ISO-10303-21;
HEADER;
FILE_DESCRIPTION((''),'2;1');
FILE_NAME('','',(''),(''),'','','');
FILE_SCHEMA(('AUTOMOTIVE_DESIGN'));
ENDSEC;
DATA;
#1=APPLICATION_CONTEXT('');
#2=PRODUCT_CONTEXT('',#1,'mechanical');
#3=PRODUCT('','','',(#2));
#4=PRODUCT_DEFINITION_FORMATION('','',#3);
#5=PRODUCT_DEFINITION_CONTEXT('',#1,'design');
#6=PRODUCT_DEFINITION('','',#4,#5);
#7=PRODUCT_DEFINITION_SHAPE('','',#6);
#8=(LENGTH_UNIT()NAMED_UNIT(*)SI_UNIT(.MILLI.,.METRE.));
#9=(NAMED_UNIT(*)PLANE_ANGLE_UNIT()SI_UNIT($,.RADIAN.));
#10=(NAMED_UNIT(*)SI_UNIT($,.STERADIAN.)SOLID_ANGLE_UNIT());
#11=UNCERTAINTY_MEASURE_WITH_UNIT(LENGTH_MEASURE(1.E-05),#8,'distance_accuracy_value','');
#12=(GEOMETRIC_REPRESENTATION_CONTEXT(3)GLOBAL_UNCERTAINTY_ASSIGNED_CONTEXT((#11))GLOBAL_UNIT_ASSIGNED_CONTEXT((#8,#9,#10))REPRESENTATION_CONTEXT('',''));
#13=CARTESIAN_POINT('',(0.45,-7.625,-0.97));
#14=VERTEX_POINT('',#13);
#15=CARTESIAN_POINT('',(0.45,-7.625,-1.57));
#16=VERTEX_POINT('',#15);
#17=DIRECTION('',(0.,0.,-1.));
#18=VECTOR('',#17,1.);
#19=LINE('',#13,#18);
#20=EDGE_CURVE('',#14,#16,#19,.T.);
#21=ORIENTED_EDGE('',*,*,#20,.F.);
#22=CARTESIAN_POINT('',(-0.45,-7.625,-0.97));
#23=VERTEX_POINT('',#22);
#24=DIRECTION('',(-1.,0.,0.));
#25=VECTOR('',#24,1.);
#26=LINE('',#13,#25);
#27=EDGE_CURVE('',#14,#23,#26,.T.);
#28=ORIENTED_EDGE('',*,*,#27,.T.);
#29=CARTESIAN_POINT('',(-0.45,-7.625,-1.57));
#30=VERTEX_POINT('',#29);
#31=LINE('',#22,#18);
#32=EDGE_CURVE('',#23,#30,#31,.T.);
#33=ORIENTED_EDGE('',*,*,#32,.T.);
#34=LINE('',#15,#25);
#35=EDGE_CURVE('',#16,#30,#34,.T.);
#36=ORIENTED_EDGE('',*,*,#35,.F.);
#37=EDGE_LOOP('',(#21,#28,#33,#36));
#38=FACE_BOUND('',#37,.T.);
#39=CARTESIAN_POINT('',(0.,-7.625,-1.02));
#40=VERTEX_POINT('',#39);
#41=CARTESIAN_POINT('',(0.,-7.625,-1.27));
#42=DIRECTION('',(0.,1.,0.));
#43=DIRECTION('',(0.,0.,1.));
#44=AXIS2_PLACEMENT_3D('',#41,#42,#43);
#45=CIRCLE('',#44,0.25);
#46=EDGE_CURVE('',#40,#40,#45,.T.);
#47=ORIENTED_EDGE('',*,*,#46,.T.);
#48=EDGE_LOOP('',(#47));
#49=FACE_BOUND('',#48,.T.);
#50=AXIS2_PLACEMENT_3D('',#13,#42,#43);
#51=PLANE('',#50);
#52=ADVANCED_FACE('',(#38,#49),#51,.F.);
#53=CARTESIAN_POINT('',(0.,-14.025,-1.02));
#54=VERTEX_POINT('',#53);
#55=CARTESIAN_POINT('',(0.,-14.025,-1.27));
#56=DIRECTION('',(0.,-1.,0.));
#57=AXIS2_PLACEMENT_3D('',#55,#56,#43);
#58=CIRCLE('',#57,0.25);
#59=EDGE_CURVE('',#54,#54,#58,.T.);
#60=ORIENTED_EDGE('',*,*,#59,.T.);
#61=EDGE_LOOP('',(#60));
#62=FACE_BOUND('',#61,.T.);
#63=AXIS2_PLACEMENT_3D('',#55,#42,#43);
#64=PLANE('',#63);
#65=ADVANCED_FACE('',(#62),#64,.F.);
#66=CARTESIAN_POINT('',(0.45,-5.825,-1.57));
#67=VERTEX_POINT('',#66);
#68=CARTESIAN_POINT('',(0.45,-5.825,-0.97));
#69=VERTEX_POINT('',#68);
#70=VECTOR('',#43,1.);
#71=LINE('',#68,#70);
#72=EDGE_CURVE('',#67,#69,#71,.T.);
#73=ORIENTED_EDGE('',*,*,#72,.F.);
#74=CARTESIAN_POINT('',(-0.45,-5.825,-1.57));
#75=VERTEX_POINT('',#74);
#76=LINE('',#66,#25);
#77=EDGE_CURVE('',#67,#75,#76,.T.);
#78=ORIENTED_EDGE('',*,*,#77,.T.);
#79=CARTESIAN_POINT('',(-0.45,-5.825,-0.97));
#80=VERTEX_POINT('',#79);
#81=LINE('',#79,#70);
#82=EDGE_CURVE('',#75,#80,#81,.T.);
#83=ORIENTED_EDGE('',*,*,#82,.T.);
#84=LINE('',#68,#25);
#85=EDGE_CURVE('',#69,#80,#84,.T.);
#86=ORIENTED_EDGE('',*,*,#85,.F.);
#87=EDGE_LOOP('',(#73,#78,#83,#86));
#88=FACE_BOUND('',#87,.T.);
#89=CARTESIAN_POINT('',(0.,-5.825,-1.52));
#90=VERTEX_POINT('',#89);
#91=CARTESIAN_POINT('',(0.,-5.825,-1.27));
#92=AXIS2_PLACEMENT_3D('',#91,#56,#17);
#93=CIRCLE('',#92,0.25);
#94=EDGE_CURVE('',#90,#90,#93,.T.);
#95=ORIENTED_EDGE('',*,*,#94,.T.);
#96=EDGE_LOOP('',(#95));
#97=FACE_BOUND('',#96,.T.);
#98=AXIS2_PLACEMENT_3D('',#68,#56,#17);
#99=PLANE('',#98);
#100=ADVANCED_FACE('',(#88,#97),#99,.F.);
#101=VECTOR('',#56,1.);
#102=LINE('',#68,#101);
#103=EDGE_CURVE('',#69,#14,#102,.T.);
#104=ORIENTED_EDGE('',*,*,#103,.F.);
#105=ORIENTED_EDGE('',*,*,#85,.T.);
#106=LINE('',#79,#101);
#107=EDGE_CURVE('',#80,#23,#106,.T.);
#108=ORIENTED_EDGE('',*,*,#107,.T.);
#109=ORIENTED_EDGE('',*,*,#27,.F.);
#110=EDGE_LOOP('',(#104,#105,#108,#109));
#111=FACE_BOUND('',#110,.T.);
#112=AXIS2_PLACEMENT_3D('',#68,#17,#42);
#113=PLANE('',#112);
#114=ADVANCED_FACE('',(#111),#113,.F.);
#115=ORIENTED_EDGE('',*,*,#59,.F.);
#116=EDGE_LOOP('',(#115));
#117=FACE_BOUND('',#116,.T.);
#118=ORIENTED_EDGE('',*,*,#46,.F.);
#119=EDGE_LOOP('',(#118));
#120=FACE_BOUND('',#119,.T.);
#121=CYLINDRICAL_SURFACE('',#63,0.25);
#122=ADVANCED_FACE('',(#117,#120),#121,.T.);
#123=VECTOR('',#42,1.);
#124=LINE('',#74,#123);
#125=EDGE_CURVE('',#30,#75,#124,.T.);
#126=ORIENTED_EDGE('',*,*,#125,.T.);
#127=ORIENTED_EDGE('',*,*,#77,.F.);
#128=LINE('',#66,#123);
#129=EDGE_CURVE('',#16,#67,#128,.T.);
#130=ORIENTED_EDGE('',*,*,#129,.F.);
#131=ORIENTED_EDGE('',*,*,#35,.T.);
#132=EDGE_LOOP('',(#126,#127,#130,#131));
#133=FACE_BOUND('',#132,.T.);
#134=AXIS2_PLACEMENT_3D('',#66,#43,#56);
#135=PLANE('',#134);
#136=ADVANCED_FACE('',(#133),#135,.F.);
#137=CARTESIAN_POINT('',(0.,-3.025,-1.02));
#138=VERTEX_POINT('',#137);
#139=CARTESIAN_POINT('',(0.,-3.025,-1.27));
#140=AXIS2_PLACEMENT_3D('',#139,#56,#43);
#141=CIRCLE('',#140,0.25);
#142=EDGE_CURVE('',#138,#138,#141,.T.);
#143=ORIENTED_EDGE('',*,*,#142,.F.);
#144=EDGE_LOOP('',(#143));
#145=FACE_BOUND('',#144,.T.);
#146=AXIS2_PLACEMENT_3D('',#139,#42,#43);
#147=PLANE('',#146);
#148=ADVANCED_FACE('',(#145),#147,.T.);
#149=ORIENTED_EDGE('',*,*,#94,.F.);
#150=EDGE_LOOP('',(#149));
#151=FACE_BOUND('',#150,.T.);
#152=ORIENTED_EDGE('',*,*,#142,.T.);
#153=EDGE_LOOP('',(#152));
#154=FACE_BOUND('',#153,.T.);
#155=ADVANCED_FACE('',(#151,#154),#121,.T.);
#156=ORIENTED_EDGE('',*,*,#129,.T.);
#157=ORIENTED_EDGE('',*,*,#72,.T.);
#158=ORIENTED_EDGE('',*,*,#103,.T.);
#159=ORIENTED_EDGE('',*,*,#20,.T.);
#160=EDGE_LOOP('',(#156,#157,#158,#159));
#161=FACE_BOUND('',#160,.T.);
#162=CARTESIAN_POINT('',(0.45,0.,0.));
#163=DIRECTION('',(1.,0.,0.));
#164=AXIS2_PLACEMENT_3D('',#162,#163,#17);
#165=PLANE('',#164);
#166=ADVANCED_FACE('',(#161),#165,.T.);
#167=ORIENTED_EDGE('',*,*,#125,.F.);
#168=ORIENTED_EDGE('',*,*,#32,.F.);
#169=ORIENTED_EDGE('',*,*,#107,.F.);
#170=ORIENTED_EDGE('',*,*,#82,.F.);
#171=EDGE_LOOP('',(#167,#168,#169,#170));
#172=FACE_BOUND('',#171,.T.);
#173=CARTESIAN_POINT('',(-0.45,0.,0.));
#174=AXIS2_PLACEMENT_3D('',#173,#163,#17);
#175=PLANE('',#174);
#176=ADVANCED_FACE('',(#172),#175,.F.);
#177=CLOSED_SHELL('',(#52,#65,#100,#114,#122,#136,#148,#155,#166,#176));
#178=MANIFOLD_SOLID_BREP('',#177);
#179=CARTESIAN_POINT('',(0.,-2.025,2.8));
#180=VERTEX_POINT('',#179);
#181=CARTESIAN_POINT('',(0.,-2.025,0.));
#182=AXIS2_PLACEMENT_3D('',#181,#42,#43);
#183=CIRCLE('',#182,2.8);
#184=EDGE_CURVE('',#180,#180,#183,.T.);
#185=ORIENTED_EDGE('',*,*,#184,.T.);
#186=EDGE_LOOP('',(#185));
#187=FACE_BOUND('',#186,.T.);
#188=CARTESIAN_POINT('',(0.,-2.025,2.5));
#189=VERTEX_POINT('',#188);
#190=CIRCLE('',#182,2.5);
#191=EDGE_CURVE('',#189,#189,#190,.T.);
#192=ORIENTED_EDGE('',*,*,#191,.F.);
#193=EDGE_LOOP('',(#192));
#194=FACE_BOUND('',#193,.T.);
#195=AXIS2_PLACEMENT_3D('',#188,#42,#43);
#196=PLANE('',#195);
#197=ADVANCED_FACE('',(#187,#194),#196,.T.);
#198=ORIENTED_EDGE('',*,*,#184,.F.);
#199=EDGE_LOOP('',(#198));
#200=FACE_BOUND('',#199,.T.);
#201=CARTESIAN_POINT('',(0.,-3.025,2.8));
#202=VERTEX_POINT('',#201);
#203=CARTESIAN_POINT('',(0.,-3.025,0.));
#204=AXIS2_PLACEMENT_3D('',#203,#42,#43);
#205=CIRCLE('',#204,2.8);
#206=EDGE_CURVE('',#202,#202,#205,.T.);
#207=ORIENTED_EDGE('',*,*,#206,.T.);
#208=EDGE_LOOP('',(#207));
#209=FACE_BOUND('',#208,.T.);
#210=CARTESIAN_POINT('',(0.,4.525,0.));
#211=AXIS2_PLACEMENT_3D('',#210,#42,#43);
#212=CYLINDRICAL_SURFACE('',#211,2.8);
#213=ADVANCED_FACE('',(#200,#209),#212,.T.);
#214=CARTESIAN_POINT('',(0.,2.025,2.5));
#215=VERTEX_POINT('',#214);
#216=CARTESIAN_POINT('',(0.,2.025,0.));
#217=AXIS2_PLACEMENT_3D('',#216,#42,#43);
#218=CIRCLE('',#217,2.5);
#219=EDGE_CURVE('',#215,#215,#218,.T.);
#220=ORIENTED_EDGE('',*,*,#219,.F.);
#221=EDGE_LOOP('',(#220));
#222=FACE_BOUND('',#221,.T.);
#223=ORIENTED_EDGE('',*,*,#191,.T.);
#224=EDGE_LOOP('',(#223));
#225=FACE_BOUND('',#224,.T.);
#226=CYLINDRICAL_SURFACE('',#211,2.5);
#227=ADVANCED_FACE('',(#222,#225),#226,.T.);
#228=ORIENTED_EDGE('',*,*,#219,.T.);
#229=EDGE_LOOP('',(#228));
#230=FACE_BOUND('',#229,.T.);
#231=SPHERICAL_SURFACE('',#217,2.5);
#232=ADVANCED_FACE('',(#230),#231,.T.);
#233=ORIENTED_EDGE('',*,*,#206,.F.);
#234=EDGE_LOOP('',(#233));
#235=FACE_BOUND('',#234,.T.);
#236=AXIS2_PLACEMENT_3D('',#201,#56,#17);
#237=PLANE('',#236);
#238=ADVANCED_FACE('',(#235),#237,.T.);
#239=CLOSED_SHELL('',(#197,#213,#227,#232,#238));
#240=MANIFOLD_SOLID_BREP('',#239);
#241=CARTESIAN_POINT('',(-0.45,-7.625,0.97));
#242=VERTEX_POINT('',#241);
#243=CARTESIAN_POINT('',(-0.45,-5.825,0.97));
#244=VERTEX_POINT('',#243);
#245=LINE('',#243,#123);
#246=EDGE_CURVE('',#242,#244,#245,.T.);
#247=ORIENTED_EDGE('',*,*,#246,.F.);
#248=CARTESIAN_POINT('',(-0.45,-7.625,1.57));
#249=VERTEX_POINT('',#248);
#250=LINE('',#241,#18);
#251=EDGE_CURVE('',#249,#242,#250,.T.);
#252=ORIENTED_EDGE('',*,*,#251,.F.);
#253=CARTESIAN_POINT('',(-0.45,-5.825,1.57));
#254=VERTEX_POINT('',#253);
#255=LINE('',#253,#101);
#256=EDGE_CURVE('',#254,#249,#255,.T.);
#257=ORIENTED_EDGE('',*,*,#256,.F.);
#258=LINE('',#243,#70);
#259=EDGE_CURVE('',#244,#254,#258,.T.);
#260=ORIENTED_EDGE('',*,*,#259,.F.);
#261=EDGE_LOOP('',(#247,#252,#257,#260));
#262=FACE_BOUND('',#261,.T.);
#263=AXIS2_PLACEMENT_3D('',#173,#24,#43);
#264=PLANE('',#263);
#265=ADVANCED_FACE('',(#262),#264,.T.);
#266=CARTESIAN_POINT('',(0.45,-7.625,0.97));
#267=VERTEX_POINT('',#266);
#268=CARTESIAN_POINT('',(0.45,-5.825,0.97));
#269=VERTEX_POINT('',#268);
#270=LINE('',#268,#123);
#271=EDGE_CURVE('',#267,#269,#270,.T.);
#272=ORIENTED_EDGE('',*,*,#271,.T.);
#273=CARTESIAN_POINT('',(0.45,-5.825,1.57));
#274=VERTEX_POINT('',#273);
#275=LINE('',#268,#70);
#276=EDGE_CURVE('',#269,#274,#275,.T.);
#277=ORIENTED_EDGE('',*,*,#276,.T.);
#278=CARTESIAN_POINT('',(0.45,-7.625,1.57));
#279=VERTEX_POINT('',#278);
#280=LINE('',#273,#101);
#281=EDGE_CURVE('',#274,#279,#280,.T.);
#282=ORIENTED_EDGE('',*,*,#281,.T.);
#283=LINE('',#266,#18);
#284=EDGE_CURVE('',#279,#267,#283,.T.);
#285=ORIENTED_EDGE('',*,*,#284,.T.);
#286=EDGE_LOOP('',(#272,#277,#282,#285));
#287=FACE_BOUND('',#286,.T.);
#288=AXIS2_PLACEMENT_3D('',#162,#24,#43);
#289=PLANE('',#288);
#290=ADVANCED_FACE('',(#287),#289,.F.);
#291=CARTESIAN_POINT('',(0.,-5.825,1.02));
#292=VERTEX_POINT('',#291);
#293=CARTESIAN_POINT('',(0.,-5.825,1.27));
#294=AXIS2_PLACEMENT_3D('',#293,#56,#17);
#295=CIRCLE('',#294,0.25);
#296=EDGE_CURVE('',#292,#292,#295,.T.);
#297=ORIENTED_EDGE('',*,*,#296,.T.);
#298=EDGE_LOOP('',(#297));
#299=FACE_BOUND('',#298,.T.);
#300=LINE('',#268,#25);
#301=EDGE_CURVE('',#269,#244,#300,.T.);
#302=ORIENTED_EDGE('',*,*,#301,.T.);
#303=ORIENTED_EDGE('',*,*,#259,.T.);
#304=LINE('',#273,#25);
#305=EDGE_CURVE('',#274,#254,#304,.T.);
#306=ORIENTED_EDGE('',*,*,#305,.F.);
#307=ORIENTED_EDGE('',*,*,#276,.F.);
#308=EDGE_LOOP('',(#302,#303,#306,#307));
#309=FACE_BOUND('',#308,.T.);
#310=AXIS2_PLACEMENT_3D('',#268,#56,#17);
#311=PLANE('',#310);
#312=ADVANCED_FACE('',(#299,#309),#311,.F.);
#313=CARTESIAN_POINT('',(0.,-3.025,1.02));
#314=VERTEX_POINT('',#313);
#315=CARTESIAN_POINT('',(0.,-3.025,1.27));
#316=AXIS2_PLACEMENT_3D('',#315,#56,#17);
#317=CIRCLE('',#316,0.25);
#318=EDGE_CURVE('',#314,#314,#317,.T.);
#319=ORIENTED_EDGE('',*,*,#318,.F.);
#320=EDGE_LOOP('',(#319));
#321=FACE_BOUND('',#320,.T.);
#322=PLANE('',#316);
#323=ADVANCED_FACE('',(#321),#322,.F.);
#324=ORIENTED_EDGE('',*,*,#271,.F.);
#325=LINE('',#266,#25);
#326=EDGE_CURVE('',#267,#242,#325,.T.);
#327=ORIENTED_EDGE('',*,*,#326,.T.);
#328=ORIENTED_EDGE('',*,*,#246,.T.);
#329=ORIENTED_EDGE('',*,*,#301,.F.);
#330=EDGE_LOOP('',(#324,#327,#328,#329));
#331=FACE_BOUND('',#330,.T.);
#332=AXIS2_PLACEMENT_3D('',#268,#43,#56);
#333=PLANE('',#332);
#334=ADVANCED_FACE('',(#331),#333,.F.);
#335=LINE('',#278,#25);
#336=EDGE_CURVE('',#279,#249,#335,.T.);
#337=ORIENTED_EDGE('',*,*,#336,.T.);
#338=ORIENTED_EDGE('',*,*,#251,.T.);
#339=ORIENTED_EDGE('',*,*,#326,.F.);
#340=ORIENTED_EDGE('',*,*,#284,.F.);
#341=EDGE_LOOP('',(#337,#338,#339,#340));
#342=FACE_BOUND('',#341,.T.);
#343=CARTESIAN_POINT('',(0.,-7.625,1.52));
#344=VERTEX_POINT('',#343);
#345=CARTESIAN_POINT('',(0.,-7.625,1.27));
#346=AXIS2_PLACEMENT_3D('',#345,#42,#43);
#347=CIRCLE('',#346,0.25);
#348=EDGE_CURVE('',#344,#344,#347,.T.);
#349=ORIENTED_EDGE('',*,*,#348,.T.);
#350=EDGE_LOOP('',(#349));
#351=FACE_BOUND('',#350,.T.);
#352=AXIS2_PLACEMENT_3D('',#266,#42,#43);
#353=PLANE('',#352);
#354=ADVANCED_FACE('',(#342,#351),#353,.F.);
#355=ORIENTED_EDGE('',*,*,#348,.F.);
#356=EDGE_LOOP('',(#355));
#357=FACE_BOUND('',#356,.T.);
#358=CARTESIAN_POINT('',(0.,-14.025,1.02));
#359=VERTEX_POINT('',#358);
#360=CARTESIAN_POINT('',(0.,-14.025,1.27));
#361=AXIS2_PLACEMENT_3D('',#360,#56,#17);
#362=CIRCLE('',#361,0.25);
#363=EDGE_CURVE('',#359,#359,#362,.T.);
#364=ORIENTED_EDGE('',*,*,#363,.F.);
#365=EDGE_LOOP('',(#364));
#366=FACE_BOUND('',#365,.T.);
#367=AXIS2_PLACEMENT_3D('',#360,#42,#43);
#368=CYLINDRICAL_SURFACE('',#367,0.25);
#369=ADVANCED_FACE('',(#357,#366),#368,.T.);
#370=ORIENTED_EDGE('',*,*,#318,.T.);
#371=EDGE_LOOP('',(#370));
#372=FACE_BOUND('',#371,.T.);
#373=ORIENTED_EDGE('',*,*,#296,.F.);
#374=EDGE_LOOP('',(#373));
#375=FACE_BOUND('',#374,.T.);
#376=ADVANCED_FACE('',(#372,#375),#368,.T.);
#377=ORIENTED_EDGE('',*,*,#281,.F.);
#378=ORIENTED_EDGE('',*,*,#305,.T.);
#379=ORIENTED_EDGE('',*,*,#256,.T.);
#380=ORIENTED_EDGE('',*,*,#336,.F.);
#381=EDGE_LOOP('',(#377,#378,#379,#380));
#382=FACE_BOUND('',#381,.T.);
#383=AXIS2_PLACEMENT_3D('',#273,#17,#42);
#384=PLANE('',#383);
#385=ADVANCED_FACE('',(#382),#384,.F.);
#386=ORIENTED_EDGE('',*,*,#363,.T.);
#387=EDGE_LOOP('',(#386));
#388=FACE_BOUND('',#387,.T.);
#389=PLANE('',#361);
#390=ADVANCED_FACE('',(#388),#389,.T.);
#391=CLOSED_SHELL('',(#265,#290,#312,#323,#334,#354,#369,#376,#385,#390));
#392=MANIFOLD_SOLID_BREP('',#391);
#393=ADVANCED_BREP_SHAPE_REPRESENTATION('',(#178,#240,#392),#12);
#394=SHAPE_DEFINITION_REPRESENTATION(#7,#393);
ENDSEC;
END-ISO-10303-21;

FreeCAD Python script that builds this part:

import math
import FreeCAD as App
import Part
import Sketcher
from FreeCAD import Vector
Q = App.Units.Quantity


def add_polygon(sketch, points):
    """Adds a closed chain of lines whose ends are joined by coincident constraints."""
    first, n = sketch.GeometryCount, len(points)
    for a, b in zip(points, points[1:] + points[:1]):
        sketch.addGeometry(Part.LineSegment(App.Vector(*a, 0), App.Vector(*b, 0)), False)
    for i in range(n):
        sketch.addConstraint(Sketcher.Constraint("Coincident", first + i, 2, first + (i + 1) % n, 1))

doc = App.newDocument("Part")
body = doc.addObject("PartDesign::Body", "Body")

# Sketch on YZ plane
sketch1 = doc.addObject("Sketcher::SketchObject", "Sketch")
body.addObject(sketch1)
sketch1.AttachmentSupport = (doc.YZ_Plane, [""])
sketch1.MapMode = "FlatFace"
sketch1.addGeometry(Part.LineSegment(Vector(2.025, 2.5, 0), Vector(-2.025, 2.5, 0)), False)
sketch1.addGeometry(Part.LineSegment(Vector(-2.025, 2.5, 0), Vector(-2.025, 2.8, 0)), False)
sketch1.addGeometry(Part.LineSegment(Vector(-2.025, 2.8, 0), Vector(-3.025, 2.8, 0)), False)
sketch1.addGeometry(Part.LineSegment(Vector(-3.025, 2.8, 0), Vector(-3.025, 0, 0)), False)
sketch1.addGeometry(Part.LineSegment(Vector(-3.025, 0, 0), Vector(4.525, 0, 0)), False)
sketch1.addGeometry(Part.ArcOfCircle(Part.Circle(Vector(2.025, 0, 0), Vector(0, 0, 1), 2.5), math.radians(0), math.radians(90)), False)
sketch1.addConstraint(Sketcher.Constraint("Coincident", 0, 2, 1, 1))
sketch1.addConstraint(Sketcher.Constraint("Coincident", 1, 2, 2, 1))
sketch1.addConstraint(Sketcher.Constraint("Coincident", 2, 2, 3, 1))
sketch1.addConstraint(Sketcher.Constraint("Coincident", 3, 2, 4, 1))
sketch1.addConstraint(Sketcher.Constraint("Coincident", 4, 2, 5, 1))
sketch1.addConstraint(Sketcher.Constraint("Tangent", 5, 2, 0, 1))
sketch1.addConstraint(Sketcher.Constraint("Horizontal", 0))
sketch1.addConstraint(Sketcher.Constraint("Vertical", 1))
sketch1.addConstraint(Sketcher.Constraint("Horizontal", 2))
sketch1.addConstraint(Sketcher.Constraint("Vertical", 3))
sketch1.addConstraint(Sketcher.Constraint("Horizontal", 4))
sketch1.addConstraint(Sketcher.Constraint("PointOnObject", 5, 3, -1))
sketch1.addConstraint(Sketcher.Constraint("PointOnObject", 3, 2, -1))
sketch1.addConstraint(Sketcher.Constraint("Radius", 5, Q("2.5 mm")))
sketch1.addConstraint(Sketcher.Constraint("DistanceX", 2, 2, 2, 1, Q("1 mm")))
sketch1.addConstraint(Sketcher.Constraint("DistanceY", 1, 1, 1, 2, Q("0.3 mm")))
sketch1.addConstraint(Sketcher.Constraint("DistanceX", 0, 2, 0, 1, Q("4.05 mm")))
sketch1.addConstraint(Sketcher.Constraint("DistanceX", -1, 1, 5, 3, Q("2.025 mm")))
revolution = doc.addObject("PartDesign::Revolution", "Revolution")
body.addObject(revolution)
revolution.Profile = sketch1
revolution.ReferenceAxis = (sketch1, ["H_Axis"])
revolution.Angle = 360
body2 = doc.addObject("PartDesign::Body", "Body001")

# Sketch on XZ plane
sketch2 = doc.addObject("Sketcher::SketchObject", "Sketch001")
body2.addObject(sketch2)
sketch2.AttachmentSupport = (doc.getObject("XZ_Plane001"), [""])
sketch2.MapMode = "FlatFace"
sketch2.AttachmentOffset = App.Placement(Vector(0, 0, 3.025), App.Rotation())
sketch2.addGeometry(Part.Circle(Vector(0, 1.27, 0), Vector(0, 0, 1), 0.25), False)
sketch2.addConstraint(Sketcher.Constraint("PointOnObject", 0, 3, -2))
sketch2.addConstraint(Sketcher.Constraint("Diameter", 0, Q("0.5 mm")))
sketch2.addConstraint(Sketcher.Constraint("DistanceY", -1, 1, 0, 3, Q("1.27 mm")))
pad1 = doc.addObject("PartDesign::Pad", "Pad")
body2.addObject(pad1)
pad1.Profile = sketch2
pad1.Length = 11
body3 = doc.addObject("PartDesign::Body", "Body002")

# Sketch on XZ plane
sketch3 = doc.addObject("Sketcher::SketchObject", "Sketch002")
body3.addObject(sketch3)
sketch3.AttachmentSupport = (doc.getObject("XZ_Plane002"), [""])
sketch3.MapMode = "FlatFace"
sketch3.AttachmentOffset = App.Placement(Vector(0, 0, 3.025), App.Rotation())
sketch3.addGeometry(Part.Circle(Vector(0, -1.27, 0), Vector(0, 0, 1), 0.25), False)
sketch3.addConstraint(Sketcher.Constraint("PointOnObject", 0, 3, -2))
sketch3.addConstraint(Sketcher.Constraint("Diameter", 0, Q("0.5 mm")))
sketch3.addConstraint(Sketcher.Constraint("DistanceY", 0, 3, -1, 1, Q("1.27 mm")))
pad2 = doc.addObject("PartDesign::Pad", "Pad001")
body3.addObject(pad2)
pad2.Profile = sketch3
pad2.Length = 11
body2.AllowCompound = True
doc.recompute()

boolean = doc.addObject("PartDesign::Boolean", "Boolean")
body2.addObject(boolean)
boolean.Type = "Fuse"
boolean.addObjects([body3])

# Sketch on YZ plane
sketch4 = doc.addObject("Sketcher::SketchObject", "Sketch003")
body2.addObject(sketch4)
sketch4.AttachmentSupport = (doc.getObject("YZ_Plane001"), [""])
sketch4.MapMode = "FlatFace"
add_polygon(sketch4, [(-5.825, -0.97), (-7.625, -0.97), (-7.625, -1.57), (-5.825, -1.57)])  # lines 0-3
add_polygon(sketch4, [(-5.825, 1.57), (-7.625, 1.57), (-7.625, 0.97), (-5.825, 0.97)])  # lines 4-7
sketch4.addConstraint(Sketcher.Constraint("Horizontal", 0))
sketch4.addConstraint(Sketcher.Constraint("Vertical", 1))
sketch4.addConstraint(Sketcher.Constraint("Horizontal", 2))
sketch4.addConstraint(Sketcher.Constraint("Vertical", 3))
sketch4.addConstraint(Sketcher.Constraint("Horizontal", 4))
sketch4.addConstraint(Sketcher.Constraint("Vertical", 5))
sketch4.addConstraint(Sketcher.Constraint("Horizontal", 6))
sketch4.addConstraint(Sketcher.Constraint("Vertical", 7))
sketch4.addConstraint(Sketcher.Constraint("Symmetric", 1, 2, 4, 2, -1))
sketch4.addConstraint(Sketcher.Constraint("Symmetric", 3, 2, 6, 2, -1))
sketch4.addConstraint(Sketcher.Constraint("DistanceX", 0, 2, 0, 1, Q("1.8 mm")))
sketch4.addConstraint(Sketcher.Constraint("DistanceY", 1, 2, 1, 1, Q("0.6 mm")))
sketch4.addConstraint(Sketcher.Constraint("DistanceY", 0, 2, -1, 1, Q("0.97 mm")))
sketch4.addConstraint(Sketcher.Constraint("DistanceX", 0, 2, -1, 1, Q("7.625 mm")))
pad3 = doc.addObject("PartDesign::Pad", "Pad002")
body2.addObject(pad3)
pad3.Profile = sketch4
pad3.Length = 0.9
pad3.Midplane = True

doc.recompute()
